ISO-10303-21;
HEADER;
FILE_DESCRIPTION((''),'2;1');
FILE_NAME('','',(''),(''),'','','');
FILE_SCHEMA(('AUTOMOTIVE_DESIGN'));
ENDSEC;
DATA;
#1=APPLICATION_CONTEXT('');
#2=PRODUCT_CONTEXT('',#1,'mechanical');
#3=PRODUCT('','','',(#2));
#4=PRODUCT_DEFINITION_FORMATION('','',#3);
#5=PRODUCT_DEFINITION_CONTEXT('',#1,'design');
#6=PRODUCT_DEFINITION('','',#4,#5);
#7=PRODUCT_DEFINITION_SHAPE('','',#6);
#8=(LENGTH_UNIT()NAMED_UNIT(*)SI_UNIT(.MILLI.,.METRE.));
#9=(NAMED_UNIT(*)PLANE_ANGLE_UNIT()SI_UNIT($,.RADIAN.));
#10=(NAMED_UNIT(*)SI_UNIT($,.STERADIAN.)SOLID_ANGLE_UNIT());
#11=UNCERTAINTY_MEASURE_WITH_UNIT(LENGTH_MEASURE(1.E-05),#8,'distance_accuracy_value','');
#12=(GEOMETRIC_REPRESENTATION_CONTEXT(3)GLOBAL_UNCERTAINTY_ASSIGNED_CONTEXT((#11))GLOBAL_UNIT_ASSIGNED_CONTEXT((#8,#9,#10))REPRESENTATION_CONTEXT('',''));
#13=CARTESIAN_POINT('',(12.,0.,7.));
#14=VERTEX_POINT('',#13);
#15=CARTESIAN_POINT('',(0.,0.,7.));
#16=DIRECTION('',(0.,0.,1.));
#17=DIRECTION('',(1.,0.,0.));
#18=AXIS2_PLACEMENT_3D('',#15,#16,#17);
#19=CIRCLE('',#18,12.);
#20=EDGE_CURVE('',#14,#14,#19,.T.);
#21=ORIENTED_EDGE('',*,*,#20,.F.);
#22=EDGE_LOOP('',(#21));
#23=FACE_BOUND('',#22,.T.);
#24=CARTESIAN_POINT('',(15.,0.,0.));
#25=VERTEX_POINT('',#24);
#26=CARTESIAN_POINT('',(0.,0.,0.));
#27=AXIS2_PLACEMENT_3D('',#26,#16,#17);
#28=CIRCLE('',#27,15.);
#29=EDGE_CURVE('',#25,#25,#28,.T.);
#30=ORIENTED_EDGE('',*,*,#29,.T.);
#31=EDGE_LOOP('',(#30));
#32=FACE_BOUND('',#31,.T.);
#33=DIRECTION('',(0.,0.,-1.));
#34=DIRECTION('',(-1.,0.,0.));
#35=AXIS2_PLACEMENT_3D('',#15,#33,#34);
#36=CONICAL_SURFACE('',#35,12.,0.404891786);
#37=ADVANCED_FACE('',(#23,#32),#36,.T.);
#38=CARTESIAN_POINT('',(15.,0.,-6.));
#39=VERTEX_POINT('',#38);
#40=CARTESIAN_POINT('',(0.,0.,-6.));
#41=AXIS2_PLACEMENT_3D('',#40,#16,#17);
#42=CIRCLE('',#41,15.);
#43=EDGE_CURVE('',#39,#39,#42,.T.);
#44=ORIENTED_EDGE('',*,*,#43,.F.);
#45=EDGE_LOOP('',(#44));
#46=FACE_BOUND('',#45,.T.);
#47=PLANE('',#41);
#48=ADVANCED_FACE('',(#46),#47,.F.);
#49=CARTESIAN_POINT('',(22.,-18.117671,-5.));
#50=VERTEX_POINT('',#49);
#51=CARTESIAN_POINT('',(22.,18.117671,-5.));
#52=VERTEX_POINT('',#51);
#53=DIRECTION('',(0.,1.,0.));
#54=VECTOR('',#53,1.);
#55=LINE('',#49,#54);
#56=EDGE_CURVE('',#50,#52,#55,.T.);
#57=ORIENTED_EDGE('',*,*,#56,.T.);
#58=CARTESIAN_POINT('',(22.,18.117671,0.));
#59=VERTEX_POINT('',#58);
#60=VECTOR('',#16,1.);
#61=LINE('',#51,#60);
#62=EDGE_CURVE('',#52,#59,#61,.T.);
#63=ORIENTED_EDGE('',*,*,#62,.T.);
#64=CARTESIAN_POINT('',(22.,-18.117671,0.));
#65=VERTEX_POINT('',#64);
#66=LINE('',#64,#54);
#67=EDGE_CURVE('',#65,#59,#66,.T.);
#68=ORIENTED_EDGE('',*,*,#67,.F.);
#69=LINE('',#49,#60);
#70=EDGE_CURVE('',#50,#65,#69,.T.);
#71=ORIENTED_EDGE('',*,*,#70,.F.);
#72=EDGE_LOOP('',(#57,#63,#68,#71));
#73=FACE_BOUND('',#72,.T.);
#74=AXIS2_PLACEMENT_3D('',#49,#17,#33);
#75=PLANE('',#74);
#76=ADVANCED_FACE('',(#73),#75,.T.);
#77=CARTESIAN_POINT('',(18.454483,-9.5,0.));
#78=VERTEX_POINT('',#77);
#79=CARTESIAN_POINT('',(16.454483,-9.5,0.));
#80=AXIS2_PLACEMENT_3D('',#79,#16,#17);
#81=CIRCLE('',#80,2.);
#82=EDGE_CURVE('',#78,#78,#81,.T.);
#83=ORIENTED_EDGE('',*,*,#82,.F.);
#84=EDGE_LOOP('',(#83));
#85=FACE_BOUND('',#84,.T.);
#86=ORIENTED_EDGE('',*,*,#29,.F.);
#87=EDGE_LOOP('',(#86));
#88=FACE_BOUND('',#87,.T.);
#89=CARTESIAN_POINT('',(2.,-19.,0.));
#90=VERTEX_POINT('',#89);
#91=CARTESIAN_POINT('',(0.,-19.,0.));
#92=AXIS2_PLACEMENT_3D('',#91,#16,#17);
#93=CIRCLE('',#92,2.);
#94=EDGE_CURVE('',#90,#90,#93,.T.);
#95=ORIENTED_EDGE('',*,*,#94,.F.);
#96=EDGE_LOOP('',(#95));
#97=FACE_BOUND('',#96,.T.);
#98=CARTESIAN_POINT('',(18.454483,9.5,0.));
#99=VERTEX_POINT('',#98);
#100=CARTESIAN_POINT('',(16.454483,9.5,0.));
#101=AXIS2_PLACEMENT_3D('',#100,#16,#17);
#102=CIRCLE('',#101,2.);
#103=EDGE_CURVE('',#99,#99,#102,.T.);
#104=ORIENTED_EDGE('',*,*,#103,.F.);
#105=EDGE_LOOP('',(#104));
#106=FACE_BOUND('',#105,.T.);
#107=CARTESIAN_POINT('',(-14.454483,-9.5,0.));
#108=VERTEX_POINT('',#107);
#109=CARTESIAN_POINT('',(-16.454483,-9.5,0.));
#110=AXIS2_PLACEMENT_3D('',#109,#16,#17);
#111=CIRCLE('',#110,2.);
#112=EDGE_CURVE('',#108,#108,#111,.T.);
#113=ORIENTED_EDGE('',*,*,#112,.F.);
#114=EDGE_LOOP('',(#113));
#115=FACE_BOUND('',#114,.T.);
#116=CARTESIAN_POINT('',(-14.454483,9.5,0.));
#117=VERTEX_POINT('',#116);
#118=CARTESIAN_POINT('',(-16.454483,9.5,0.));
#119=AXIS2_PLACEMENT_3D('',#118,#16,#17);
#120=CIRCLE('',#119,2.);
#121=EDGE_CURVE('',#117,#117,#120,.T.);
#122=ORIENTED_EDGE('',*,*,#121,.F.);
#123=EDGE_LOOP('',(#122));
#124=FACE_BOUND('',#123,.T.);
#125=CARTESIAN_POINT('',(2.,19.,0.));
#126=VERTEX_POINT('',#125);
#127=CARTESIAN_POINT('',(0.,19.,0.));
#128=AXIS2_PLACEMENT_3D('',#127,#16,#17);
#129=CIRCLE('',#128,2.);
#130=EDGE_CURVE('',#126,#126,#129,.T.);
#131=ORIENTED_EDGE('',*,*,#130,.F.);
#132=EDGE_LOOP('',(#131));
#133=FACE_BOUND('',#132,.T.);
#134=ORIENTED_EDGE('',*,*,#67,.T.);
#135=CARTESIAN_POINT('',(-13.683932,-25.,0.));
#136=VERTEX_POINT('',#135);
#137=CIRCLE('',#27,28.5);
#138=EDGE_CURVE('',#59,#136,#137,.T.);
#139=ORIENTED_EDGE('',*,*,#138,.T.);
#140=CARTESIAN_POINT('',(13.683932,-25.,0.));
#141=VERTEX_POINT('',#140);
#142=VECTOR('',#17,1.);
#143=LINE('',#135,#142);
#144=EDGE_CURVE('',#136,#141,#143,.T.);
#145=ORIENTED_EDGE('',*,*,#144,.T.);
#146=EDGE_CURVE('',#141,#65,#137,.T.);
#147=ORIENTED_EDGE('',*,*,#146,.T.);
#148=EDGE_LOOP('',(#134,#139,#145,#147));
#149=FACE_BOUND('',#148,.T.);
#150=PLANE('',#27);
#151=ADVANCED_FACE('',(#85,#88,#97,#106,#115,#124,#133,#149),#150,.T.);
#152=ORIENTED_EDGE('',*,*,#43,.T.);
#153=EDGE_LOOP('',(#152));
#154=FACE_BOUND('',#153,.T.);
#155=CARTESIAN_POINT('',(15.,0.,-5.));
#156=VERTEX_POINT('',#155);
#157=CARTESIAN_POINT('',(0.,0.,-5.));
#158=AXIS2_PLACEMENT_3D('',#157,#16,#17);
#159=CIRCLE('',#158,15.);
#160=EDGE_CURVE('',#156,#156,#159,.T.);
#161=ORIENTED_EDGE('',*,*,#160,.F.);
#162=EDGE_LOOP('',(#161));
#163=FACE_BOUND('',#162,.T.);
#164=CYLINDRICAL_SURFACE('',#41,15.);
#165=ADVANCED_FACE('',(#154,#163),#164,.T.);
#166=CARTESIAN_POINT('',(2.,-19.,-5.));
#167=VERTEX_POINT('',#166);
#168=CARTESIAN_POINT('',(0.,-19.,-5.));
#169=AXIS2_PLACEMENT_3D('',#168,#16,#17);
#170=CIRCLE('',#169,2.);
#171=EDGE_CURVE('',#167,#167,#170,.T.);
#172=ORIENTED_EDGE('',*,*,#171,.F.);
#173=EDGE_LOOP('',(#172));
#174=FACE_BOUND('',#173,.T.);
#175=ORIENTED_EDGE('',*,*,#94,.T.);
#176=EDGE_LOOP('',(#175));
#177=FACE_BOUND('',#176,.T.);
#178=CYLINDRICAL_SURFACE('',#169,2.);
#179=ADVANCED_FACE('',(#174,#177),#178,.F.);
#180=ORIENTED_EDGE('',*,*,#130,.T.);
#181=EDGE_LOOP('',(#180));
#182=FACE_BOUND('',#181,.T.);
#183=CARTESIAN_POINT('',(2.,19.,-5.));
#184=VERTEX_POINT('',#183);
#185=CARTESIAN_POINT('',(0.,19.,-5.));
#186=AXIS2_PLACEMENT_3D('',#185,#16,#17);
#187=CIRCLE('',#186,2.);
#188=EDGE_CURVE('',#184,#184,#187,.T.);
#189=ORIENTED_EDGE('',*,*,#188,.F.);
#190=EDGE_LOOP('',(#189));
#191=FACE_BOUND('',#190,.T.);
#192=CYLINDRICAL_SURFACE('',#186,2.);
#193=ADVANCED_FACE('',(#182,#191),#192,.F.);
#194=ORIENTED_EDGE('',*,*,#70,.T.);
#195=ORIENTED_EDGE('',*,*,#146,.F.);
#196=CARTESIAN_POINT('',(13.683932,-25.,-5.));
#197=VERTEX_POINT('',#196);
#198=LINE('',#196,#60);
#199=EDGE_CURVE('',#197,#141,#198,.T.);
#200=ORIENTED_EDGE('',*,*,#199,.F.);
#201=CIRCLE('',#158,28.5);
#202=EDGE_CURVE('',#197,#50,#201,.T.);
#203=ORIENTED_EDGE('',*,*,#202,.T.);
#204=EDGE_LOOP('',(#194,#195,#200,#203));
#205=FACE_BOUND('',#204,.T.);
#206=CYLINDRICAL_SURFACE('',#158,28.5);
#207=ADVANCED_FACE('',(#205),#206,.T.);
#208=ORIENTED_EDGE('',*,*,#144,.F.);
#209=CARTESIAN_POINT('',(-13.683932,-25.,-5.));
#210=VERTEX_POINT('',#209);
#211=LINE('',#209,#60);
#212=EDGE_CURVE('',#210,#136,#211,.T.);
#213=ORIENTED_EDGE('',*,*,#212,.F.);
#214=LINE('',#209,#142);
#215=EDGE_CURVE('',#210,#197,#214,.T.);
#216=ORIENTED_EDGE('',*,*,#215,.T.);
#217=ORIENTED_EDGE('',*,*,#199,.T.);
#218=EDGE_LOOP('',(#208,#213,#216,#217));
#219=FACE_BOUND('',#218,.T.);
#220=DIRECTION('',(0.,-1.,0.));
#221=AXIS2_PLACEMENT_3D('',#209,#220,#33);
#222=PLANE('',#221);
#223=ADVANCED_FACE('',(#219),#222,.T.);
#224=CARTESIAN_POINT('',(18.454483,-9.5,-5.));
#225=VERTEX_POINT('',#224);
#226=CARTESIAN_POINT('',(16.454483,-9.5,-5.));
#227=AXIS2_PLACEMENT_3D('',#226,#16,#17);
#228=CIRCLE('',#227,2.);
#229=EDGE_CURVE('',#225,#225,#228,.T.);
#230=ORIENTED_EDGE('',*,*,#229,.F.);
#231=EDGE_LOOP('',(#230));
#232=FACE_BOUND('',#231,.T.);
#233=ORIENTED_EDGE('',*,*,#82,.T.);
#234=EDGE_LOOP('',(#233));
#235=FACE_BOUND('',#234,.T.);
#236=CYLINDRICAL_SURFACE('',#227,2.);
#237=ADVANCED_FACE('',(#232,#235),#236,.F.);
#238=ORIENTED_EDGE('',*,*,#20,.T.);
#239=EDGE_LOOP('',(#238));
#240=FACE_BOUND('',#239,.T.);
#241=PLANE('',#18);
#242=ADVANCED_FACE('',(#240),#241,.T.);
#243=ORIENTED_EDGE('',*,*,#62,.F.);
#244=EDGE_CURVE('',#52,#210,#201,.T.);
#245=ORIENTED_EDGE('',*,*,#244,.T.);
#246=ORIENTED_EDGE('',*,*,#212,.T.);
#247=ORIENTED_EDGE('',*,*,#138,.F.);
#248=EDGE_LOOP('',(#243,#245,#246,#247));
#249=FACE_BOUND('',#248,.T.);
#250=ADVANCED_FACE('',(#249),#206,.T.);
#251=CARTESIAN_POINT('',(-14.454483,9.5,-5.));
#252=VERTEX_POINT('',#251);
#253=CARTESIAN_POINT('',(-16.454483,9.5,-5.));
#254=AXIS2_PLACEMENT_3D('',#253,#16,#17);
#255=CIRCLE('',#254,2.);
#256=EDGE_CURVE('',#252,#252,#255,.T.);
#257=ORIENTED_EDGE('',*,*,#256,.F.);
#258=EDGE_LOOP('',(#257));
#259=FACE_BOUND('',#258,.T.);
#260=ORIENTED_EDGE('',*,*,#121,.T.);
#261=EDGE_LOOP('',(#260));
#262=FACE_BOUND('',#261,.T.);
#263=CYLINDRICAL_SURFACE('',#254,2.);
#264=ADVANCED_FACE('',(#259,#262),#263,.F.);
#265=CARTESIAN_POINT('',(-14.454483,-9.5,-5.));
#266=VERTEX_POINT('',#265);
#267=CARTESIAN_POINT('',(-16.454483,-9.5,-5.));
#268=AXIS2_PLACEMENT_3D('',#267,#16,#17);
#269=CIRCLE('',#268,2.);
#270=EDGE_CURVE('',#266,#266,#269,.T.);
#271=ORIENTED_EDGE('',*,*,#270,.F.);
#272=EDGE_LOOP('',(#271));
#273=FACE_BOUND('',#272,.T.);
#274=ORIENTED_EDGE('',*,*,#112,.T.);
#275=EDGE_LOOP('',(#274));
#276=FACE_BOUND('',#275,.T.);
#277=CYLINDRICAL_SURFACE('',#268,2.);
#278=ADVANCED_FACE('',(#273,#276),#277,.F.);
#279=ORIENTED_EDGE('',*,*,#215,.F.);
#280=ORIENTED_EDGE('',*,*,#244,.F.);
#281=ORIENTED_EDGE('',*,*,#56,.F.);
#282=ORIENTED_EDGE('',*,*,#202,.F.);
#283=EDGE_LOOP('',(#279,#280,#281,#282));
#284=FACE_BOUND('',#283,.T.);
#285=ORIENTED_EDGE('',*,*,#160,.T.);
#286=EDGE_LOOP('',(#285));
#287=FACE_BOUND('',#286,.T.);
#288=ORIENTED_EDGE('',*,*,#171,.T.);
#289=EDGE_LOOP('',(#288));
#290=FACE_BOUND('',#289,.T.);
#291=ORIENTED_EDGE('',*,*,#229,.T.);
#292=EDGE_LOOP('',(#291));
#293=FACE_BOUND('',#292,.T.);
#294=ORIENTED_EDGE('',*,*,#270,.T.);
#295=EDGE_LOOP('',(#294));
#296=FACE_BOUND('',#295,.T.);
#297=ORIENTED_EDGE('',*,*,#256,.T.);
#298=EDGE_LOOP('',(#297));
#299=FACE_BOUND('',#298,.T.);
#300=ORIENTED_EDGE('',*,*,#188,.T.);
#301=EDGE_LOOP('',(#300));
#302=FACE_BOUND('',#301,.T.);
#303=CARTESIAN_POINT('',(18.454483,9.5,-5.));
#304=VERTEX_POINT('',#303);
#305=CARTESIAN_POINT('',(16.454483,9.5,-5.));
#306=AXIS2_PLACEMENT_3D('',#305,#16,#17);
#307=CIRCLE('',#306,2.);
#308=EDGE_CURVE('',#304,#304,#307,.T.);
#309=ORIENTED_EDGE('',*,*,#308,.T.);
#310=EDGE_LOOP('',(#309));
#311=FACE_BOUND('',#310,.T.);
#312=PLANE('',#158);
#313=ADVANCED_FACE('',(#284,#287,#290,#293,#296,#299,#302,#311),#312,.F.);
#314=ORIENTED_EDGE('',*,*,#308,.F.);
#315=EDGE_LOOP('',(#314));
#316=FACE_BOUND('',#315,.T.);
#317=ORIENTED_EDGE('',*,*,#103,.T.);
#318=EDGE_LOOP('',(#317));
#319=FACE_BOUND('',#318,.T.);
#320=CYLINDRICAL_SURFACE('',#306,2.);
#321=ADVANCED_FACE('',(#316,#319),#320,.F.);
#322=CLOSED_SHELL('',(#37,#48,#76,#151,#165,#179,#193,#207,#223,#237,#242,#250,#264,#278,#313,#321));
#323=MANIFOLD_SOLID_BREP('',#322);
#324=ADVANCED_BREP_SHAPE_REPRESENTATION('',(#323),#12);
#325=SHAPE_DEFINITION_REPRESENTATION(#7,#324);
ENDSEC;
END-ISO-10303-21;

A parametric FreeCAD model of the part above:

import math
import FreeCAD as App
import Part
import Sketcher
from FreeCAD import Vector
Q = App.Units.Quantity

doc = App.newDocument("Part")
body = doc.addObject("PartDesign::Body", "Body")

# Sketch on XY plane
sketch1 = body.newObject("Sketcher::SketchObject", "Sketch")
sketch1.AttachmentSupport = (doc.getObject("XY_Plane"), [""])
sketch1.MapMode = "FlatFace"
sketch1.addGeometry([
    Part.LineSegment(Vector(22, -18.1, 0), Vector(22, 18.1, 0)),  # 0
    Part.ArcOfCircle(Part.Circle(Vector(0, 0, 0), Vector(0, 0, 1), 28.5), math.radians(39), math.radians(241)),  # 1
    Part.LineSegment(Vector(-13.7, -25, 0), Vector(13.7, -25, 0)),  # 2
    Part.ArcOfCircle(Part.Circle(Vector(0, 0, 0), Vector(0, 0, 1), 28.5), math.radians(-61), math.radians(-39)),  # 3
    Part.Circle(Vector(-16.5, -9.5, 0), Vector(0, 0, 1), 2),  # 4
    Part.Circle(Vector(0, -19, 0), Vector(0, 0, 1), 2),  # 5
    Part.Circle(Vector(16.5, -9.5, 0), Vector(0, 0, 1), 2),  # 6
    Part.Circle(Vector(-16.5, 9.5, 0), Vector(0, 0, 1), 2),  # 7
    Part.Circle(Vector(0, 0, 0), Vector(0, 0, 1), 15),  # 8
    Part.Circle(Vector(16.5, 9.5, 0), Vector(0, 0, 1), 2),  # 9
    Part.Circle(Vector(0, 19, 0), Vector(0, 0, 1), 2),  # 10
], False)
sketch1.addConstraint([
    Sketcher.Constraint("Coincident", 0, 2, 1, 1),
    Sketcher.Constraint("Coincident", 1, 2, 2, 1),
    Sketcher.Constraint("Coincident", 2, 2, 3, 1),
    Sketcher.Constraint("Coincident", 3, 2, 0, 1),
    Sketcher.Constraint("Vertical", 0),
    Sketcher.Constraint("Horizontal", 2),
    Sketcher.Constraint("Coincident", 1, 3, -1, 1),
    Sketcher.Constraint("Coincident", 3, 3, -1, 1),
    Sketcher.Constraint("Coincident", 8, 3, -1, 1),
    Sketcher.Constraint("Equal", 1, 3),
    Sketcher.Constraint("Equal", 4, 5),
    Sketcher.Constraint("Equal", 5, 6),
    Sketcher.Constraint("Equal", 6, 7),
    Sketcher.Constraint("Equal", 7, 9),
    Sketcher.Constraint("Equal", 9, 10),
    Sketcher.Constraint("Symmetric", 6, 3, 7, 3, -1, 1),
    Sketcher.Constraint("Symmetric", 4, 3, 9, 3, -1, 1),
    Sketcher.Constraint("Symmetric", 5, 3, 10, 3, -1, 1),
    Sketcher.Constraint("Symmetric", 4, 3, 6, 3, -2),
    Sketcher.Constraint("PointOnObject", 5, 3, -2),
    Sketcher.Constraint("Diameter", 4, Q("4 mm")),
    Sketcher.Constraint("Diameter", 8, Q("30 mm")),
    Sketcher.Constraint("Radius", 1, Q("28.5 mm")),
    Sketcher.Constraint("DistanceY", 5, 3, -1, 1, Q("19 mm")),
    Sketcher.Constraint("DistanceX", -1, 1, 0, 2, Q("22 mm")),
    Sketcher.Constraint("DistanceY", 1, 2, -1, 1, Q("25 mm")),
    Sketcher.Constraint("DistanceY", 4, 3, 7, 3, Q("19 mm")),
    Sketcher.Constraint("DistanceX", 4, 3, 1, 2, Q("2.77055 mm")),
])
pad1 = body.newObject("PartDesign::Pad", "Pad")
pad1.Profile = sketch1
pad1.Length = 5
pad1.Reversed = True

# Sketch on XY plane
sketch2 = body.newObject("Sketcher::SketchObject", "Sketch001")
sketch2.AttachmentSupport = (doc.getObject("XY_Plane"), [""])
sketch2.MapMode = "FlatFace"
sketch2.addGeometry(Part.Circle(Vector(0, 0, 0), Vector(0, 0, 1), 15), False)
sketch2.addConstraint([
    Sketcher.Constraint("Coincident", 0, 3, -1, 1),
    Sketcher.Constraint("Diameter", 0, Q("30 mm")),
])
pad2 = body.newObject("PartDesign::Pad", "Pad001")
pad2.Profile = sketch2
pad2.Length = 6
pad2.Reversed = True

# Sketch on XY plane
sketch3 = body.newObject("Sketcher::SketchObject", "Sketch002")
sketch3.AttachmentSupport = (doc.getObject("XY_Plane"), [""])
sketch3.MapMode = "FlatFace"
sketch3.AttachmentOffset = App.Placement(Vector(0, 0, 7), App.Rotation())
sketch3.addGeometry(Part.Circle(Vector(0, 0, 0), Vector(0, 0, 1), 12), False)
sketch3.addConstraint([
    Sketcher.Constraint("Coincident", 0, 3, -1, 1),
    Sketcher.Constraint("Diameter", 0, Q("24 mm")),
])

# Sketch on XY plane
sketch4 = body.newObject("Sketcher::SketchObject", "Sketch003")
sketch4.AttachmentSupport = (doc.getObject("XY_Plane"), [""])
sketch4.MapMode = "FlatFace"
sketch4.addGeometry(Part.Circle(Vector(0, 0, 0), Vector(0, 0, 1), 15), False)
sketch4.addConstraint([
    Sketcher.Constraint("Coincident", 0, 3, -1, 1),
    Sketcher.Constraint("Diameter", 0, Q("30 mm")),
])

additiveloft = body.newObject("PartDesign::AdditiveLoft", "AdditiveLoft")
additiveloft.Profile = sketch3
additiveloft.Sections = [sketch4]

doc.recompute()
